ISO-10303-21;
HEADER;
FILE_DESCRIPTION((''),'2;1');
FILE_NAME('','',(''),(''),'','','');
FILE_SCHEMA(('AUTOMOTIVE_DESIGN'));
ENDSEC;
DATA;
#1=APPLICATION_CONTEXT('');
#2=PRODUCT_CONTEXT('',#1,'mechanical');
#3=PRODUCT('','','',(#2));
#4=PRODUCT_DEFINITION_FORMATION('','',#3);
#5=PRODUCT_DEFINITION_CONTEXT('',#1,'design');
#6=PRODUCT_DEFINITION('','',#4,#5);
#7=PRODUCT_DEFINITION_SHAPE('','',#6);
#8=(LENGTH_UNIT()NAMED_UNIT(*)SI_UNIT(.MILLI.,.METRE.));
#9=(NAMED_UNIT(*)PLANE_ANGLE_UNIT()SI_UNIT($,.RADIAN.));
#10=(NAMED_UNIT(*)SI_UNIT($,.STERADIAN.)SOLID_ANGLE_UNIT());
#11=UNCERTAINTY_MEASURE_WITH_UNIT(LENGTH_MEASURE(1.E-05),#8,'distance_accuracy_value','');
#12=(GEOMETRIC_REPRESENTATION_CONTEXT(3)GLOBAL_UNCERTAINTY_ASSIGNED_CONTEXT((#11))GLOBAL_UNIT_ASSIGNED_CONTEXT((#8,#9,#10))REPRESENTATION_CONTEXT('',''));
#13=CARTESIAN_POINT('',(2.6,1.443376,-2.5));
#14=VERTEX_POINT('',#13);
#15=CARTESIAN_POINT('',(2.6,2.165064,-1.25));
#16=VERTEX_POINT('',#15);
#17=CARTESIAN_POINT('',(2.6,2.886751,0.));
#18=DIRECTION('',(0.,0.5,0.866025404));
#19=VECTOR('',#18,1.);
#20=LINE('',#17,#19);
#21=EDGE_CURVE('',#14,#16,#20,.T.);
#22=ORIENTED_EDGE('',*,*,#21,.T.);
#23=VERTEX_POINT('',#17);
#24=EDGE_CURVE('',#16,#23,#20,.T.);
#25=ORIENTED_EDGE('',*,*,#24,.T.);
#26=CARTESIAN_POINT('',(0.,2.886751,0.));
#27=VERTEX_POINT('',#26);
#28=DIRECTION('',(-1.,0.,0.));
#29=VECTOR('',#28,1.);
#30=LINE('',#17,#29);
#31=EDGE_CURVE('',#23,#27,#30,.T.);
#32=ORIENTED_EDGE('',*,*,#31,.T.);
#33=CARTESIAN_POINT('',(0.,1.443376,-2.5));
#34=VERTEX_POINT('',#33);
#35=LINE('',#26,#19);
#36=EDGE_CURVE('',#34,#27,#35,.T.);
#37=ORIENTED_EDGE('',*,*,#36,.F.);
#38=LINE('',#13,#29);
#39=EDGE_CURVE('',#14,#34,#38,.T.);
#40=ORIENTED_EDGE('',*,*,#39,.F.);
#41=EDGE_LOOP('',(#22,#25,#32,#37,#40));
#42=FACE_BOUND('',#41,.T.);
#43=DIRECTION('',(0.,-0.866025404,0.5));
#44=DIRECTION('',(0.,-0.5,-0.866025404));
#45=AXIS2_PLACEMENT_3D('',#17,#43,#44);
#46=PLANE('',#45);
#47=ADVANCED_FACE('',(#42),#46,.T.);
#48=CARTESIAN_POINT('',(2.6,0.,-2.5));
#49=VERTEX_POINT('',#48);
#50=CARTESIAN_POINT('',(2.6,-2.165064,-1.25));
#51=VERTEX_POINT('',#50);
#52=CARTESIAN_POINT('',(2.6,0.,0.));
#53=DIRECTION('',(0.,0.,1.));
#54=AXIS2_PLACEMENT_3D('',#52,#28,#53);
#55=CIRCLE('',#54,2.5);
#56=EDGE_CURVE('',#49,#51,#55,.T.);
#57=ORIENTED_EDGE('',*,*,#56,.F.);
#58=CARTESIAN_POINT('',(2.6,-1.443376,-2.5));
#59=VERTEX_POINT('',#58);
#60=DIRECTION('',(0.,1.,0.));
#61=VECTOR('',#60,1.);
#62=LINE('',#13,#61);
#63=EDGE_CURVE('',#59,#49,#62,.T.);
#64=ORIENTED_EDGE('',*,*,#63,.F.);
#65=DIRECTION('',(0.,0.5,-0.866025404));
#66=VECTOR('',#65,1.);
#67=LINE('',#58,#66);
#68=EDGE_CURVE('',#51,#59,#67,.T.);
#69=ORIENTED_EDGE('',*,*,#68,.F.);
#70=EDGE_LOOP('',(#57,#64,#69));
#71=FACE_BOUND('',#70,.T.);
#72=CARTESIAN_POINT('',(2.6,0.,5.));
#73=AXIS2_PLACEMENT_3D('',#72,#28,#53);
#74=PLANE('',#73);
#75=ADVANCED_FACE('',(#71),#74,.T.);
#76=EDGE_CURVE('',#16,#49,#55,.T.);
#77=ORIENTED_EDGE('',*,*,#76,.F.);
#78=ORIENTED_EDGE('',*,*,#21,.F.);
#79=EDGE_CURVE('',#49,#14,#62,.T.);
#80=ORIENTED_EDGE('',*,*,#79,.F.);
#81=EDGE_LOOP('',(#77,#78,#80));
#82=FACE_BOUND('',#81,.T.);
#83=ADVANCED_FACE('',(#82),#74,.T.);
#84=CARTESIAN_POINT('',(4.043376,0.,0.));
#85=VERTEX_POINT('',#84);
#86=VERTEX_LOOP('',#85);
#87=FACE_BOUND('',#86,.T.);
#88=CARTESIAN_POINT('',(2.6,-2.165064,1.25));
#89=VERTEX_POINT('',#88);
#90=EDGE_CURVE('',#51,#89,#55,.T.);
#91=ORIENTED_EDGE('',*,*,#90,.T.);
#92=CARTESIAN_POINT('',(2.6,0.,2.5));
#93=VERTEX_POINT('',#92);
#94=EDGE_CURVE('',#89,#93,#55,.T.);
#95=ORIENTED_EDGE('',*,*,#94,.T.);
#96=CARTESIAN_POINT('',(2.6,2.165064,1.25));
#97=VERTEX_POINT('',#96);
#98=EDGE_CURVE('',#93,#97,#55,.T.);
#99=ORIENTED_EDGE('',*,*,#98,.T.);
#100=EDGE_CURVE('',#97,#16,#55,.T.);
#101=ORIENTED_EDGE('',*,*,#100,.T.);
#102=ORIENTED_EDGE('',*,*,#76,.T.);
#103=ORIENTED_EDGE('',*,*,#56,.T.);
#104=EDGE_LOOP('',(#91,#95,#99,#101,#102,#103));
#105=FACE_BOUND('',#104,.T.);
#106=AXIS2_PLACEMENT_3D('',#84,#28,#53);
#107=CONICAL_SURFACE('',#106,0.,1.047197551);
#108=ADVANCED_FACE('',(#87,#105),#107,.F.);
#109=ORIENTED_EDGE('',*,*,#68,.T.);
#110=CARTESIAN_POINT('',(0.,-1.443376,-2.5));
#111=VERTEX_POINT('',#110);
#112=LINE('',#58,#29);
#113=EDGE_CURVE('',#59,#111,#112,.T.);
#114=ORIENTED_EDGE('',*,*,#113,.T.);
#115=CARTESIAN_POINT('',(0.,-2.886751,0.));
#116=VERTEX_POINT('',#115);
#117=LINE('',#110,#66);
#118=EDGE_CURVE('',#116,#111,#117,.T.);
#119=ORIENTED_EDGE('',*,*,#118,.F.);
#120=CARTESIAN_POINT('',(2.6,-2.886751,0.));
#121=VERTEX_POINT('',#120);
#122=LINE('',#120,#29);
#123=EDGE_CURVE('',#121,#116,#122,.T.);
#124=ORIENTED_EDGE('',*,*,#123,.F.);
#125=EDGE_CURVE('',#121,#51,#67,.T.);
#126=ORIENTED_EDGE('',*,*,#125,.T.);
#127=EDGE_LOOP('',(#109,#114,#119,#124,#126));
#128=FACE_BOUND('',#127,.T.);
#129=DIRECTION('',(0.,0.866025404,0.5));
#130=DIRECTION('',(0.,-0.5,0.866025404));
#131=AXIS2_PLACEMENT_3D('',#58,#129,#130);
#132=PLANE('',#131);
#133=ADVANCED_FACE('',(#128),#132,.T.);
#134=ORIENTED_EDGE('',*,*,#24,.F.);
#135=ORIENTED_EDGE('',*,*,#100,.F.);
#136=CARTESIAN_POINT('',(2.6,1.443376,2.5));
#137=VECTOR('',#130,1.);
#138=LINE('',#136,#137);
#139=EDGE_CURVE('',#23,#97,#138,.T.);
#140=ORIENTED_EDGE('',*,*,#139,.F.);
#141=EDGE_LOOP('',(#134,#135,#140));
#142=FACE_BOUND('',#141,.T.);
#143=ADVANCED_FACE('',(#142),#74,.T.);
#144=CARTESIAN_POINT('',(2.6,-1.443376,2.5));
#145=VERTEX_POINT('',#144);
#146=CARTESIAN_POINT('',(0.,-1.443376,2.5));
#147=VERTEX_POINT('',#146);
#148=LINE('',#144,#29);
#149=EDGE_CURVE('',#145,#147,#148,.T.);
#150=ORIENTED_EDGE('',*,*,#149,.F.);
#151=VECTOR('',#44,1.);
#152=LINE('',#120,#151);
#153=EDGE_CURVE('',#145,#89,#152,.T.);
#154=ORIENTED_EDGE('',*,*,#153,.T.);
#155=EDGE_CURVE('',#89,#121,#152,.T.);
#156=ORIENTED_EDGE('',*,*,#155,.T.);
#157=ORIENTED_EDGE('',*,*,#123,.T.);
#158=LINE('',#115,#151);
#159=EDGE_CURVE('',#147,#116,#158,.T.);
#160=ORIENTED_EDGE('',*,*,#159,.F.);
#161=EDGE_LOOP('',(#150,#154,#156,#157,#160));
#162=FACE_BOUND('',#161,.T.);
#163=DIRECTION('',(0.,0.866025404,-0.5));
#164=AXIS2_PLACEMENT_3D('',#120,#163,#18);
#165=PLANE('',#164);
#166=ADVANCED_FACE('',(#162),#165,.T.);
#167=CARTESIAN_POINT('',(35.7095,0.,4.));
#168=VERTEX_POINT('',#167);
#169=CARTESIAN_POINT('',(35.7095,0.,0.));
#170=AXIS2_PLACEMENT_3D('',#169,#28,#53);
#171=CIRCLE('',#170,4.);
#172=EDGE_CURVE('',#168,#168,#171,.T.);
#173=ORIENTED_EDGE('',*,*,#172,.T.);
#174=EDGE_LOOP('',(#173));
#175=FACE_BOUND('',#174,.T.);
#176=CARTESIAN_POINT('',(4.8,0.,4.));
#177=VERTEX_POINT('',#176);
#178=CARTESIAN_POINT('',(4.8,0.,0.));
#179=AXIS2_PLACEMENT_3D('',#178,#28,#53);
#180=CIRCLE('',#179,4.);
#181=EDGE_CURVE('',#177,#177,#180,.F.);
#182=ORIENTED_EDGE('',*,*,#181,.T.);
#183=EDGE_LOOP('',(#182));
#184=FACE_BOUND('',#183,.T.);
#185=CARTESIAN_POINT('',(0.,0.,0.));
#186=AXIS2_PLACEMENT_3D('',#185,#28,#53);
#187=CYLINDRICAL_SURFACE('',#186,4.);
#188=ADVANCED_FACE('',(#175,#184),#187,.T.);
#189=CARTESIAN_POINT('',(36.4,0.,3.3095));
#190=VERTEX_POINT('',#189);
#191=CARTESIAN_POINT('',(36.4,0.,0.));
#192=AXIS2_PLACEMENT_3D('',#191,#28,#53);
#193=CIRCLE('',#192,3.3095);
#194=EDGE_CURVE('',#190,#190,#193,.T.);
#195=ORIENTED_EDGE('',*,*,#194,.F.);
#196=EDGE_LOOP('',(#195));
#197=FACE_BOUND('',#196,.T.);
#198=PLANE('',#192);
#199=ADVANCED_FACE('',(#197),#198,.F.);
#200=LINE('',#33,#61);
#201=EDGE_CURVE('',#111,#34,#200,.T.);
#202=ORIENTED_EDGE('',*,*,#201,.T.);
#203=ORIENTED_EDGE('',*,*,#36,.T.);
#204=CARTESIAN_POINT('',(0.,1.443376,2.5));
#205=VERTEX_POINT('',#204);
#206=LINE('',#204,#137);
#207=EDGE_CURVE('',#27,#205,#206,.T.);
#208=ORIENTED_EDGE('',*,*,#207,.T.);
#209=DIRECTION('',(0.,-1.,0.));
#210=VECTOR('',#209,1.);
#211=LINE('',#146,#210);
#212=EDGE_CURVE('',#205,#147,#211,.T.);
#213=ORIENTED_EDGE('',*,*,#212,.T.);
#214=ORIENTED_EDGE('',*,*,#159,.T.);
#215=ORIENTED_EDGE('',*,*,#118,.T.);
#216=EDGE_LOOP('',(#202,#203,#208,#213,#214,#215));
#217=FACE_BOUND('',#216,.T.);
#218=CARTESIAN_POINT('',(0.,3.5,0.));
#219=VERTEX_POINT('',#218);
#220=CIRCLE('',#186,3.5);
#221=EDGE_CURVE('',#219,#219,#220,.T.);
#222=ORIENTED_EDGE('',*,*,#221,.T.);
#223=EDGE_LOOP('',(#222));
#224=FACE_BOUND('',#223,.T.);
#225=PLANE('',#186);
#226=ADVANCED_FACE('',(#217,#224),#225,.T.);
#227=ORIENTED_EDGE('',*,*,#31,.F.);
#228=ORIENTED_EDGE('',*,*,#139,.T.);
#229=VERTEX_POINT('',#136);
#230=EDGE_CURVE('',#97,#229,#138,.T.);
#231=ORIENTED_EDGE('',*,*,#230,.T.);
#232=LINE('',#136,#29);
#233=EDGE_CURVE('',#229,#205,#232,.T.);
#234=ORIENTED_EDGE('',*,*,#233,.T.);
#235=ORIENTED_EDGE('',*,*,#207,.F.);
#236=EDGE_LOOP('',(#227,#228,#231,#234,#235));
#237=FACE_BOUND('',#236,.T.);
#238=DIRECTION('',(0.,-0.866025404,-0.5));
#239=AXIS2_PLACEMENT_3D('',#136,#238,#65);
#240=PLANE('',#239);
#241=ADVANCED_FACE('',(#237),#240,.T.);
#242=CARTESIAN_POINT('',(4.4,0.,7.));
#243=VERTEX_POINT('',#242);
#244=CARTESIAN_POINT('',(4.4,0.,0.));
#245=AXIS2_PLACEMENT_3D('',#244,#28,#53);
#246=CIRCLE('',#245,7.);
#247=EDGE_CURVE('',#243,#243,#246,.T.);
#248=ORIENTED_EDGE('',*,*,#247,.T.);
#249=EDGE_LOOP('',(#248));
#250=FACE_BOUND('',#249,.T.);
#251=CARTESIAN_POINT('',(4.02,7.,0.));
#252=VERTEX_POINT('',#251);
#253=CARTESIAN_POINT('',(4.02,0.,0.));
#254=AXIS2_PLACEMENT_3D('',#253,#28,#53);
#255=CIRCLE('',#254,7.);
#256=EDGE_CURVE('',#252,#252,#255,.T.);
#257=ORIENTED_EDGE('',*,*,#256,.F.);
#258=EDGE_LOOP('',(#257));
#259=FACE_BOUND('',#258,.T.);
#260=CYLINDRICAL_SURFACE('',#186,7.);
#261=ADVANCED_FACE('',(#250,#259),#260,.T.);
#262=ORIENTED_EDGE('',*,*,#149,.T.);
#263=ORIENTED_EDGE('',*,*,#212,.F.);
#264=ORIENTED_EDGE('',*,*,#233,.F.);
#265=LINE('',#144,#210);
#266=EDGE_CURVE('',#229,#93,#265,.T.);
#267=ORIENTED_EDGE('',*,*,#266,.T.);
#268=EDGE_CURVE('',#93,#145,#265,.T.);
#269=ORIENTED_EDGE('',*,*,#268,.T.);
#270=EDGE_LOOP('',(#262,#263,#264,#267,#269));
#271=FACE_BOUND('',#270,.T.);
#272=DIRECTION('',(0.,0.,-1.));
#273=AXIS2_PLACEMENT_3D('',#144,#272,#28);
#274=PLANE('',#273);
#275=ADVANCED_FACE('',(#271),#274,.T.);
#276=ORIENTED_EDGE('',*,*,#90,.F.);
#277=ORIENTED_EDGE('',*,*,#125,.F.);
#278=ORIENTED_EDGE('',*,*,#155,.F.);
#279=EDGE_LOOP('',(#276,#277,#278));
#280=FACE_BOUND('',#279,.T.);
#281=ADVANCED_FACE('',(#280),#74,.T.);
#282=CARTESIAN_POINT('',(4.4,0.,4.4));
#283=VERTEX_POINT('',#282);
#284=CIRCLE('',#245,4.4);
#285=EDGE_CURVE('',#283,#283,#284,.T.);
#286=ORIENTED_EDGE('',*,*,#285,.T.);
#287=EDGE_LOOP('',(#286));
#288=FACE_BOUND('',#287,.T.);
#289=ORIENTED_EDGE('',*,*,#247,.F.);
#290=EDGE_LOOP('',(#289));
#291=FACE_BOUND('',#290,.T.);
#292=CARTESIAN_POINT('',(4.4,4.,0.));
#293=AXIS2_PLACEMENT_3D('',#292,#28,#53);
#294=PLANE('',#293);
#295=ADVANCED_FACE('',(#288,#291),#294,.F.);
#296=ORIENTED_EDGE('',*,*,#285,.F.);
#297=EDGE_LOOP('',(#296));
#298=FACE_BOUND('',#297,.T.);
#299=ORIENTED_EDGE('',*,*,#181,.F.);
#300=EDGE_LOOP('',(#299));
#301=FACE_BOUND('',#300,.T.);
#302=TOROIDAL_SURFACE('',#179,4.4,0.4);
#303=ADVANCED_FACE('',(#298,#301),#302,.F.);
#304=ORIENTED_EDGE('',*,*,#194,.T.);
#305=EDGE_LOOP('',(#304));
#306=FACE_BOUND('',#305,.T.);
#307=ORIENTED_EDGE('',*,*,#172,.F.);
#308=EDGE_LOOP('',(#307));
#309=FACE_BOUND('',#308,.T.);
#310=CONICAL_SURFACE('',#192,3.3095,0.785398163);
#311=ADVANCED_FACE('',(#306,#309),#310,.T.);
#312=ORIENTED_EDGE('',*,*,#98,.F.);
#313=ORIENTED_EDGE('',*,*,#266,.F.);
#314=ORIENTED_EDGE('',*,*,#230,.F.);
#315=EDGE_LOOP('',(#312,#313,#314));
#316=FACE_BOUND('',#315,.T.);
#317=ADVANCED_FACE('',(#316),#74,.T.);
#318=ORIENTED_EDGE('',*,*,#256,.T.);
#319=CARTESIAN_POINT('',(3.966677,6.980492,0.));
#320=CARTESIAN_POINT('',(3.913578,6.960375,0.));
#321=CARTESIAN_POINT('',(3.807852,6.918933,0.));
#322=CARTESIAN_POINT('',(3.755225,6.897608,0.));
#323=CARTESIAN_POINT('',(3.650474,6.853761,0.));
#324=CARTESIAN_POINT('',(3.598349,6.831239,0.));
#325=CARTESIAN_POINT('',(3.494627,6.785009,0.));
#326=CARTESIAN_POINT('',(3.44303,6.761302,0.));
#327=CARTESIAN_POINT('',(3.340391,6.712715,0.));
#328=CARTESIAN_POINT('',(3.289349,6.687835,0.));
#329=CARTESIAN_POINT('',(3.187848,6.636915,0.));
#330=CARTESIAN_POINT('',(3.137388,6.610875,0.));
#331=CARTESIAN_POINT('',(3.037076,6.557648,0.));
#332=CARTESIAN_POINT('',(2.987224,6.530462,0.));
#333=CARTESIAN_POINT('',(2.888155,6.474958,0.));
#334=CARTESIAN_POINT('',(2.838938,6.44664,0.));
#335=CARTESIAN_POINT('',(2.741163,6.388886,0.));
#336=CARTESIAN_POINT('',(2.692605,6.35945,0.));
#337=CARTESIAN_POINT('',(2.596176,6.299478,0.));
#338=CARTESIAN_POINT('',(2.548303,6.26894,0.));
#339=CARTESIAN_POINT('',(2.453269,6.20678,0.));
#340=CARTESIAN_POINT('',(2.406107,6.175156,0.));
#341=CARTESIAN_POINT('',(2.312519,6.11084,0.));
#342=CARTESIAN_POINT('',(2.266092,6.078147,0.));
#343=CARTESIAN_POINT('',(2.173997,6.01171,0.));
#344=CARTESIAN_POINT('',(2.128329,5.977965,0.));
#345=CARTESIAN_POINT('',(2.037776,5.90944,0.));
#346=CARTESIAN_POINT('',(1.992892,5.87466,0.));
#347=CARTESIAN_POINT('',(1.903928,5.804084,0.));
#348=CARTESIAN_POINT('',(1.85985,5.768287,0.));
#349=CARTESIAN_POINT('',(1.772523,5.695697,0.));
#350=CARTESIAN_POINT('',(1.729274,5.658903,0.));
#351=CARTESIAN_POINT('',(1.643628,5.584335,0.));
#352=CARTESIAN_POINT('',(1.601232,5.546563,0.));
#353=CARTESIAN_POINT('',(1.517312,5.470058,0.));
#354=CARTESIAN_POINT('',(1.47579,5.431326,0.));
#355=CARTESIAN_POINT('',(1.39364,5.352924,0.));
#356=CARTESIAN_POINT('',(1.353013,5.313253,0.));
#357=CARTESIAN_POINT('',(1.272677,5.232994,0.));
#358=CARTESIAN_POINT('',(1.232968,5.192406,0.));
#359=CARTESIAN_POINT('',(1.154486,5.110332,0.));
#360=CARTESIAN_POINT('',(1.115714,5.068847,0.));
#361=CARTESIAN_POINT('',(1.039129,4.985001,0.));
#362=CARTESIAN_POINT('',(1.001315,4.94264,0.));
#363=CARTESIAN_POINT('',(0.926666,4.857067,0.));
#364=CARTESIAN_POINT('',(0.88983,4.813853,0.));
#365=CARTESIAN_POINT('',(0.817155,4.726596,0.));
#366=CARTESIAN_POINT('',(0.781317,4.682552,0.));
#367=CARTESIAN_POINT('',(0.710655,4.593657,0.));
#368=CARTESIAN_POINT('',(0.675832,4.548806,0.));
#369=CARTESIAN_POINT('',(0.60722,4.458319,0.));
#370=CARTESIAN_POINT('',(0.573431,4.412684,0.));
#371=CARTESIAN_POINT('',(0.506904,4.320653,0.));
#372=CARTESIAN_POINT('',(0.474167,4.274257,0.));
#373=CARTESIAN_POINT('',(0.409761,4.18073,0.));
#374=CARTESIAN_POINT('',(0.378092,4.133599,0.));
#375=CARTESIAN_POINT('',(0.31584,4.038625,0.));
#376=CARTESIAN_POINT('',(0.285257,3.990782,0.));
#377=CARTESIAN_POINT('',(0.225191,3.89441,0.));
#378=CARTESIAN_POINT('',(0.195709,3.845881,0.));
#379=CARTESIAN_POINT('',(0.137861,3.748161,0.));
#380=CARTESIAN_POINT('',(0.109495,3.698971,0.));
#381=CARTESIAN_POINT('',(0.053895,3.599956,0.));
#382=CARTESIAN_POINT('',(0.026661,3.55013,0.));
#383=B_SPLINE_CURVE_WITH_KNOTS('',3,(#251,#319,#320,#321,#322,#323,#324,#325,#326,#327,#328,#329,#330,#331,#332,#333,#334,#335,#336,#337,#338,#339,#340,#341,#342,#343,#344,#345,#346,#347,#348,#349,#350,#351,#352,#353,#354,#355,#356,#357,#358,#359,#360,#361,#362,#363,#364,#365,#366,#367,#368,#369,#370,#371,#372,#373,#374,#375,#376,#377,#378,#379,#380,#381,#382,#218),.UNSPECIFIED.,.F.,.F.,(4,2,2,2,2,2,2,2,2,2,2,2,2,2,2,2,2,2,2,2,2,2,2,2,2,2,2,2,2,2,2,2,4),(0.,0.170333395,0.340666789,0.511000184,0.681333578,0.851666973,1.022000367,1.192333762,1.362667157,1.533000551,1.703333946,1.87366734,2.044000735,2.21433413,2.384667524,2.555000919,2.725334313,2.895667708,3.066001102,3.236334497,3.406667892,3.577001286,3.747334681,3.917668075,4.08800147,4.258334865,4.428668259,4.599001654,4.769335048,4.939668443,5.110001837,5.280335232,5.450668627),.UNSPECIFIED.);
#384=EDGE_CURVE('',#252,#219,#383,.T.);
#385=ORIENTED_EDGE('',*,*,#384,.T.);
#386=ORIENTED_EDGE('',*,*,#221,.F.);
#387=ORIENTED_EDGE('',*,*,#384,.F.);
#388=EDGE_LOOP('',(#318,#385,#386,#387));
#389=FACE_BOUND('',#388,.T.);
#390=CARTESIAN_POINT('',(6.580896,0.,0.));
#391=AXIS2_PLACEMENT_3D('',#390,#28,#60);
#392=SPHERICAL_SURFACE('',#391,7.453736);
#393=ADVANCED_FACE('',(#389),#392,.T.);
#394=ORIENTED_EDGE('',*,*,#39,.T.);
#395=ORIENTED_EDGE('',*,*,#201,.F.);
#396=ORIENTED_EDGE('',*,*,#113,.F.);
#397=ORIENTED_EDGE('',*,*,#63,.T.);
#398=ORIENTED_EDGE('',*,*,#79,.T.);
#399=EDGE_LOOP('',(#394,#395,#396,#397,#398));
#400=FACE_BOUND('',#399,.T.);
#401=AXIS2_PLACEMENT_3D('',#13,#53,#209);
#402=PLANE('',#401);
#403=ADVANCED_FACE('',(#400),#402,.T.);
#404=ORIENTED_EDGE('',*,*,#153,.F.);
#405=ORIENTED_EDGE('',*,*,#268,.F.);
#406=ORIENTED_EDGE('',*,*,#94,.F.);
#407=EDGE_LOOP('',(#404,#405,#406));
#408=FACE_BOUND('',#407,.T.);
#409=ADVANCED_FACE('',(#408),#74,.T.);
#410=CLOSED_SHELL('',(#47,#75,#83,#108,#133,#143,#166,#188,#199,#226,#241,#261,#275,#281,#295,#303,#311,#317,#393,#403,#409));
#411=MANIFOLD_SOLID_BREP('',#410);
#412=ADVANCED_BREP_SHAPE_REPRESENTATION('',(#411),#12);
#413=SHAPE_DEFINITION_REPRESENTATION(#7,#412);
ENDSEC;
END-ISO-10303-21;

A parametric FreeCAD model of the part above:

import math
import FreeCAD as App
import Part
import Sketcher
from FreeCAD import Vector
Q = App.Units.Quantity


def edges_at(feature, points):
    """Names of the edges that pass closest to the given points."""
    edges = feature.Shape.Edges
    near = lambda p: min(range(len(edges)), key=lambda i: edges[i].distToShape(Part.Vertex(*p))[0])
    return sorted({f"Edge{near(p) + 1}" for p in points})

doc = App.newDocument("Part")
body = doc.addObject("PartDesign::Body", "Body")

# Sketch on XY plane
sketch1 = body.newObject("Sketcher::SketchObject", "Sketch")
sketch1.AttachmentSupport = (doc.getObject("XY_Plane"), [""])
sketch1.MapMode = "FlatFace"
sketch1.addGeometry([
    Part.LineSegment(Vector(36.4, 0, 0), Vector(36.4, 3.31, 0)),  # 0
    Part.LineSegment(Vector(36.4, 3.31, 0), Vector(35.71, 4, 0)),  # 1
    Part.LineSegment(Vector(35.71, 4, 0), Vector(4.4, 4, 0)),  # 2
    Part.LineSegment(Vector(4.4, 4, 0), Vector(4.4, 7, 0)),  # 3
    Part.LineSegment(Vector(4.4, 7, 0), Vector(4.02, 7, 0)),  # 4
    Part.ArcOfCircle(Part.Circle(Vector(6.58, 0, 0), Vector(0, 0, 1), 7.45), math.radians(110), math.radians(152)),  # 5
    Part.LineSegment(Vector(0, 3.5, 0), Vector(0, 0, 0)),  # 6
    Part.LineSegment(Vector(0, 0, 0), Vector(36.4, 0, 0)),  # 7
], False)
sketch1.addConstraint([
    Sketcher.Constraint("Coincident", 0, 2, 1, 1),
    Sketcher.Constraint("Coincident", 1, 2, 2, 1),
    Sketcher.Constraint("Coincident", 2, 2, 3, 1),
    Sketcher.Constraint("Coincident", 3, 2, 4, 1),
    Sketcher.Constraint("Coincident", 4, 2, 5, 1),
    Sketcher.Constraint("Coincident", 5, 2, 6, 1),
    Sketcher.Constraint("Coincident", 6, 2, 7, 1),
    Sketcher.Constraint("Coincident", 7, 2, 0, 1),
    Sketcher.Constraint("Vertical", 0),
    Sketcher.Constraint("Horizontal", 2),
    Sketcher.Constraint("Vertical", 3),
    Sketcher.Constraint("Horizontal", 4),
    Sketcher.Constraint("Vertical", 6),
    Sketcher.Constraint("Horizontal", 7),
    Sketcher.Constraint("Coincident", 6, 2, -1, 1),
    Sketcher.Constraint("PointOnObject", 5, 3, -1),
    Sketcher.Constraint("DistanceY", 3, 1, 3, 2, 3.0),
    Sketcher.Constraint("Angle", 1, Q("135 deg")),
    Sketcher.Constraint("DistanceX", 7, 1, 7, 2, 36.4),
    Sketcher.Constraint("DistanceY", 6, 2, 6, 1, 3.5),
    Sketcher.Constraint("DistanceY", -1, 1, 1, 2, 4.0),
    Sketcher.Constraint("DistanceX", 2, 2, 0, 2, 32.0),
    Sketcher.Constraint("DistanceX", 4, 2, 4, 1, 0.38),
    Sketcher.Constraint("DistanceX", 2, 2, 2, 1, 31.3095),
])
revolution = body.newObject("PartDesign::Revolution", "Revolution")
revolution.Profile = sketch1
revolution.ReferenceAxis = (sketch1, ["H_Axis"])
revolution.Angle = 360
doc.recompute()

fillet = body.newObject("PartDesign::Fillet", "Fillet")
fillet.Base = (revolution, edges_at(revolution, [(4.4, 0, -4)]))
fillet.Radius = 0.4

# Sketch on XY plane
sketch2 = body.newObject("Sketcher::SketchObject", "Sketch001")
sketch2.AttachmentSupport = (doc.getObject("XY_Plane"), [""])
sketch2.MapMode = "FlatFace"
sketch2.addGeometry([
    Part.LineSegment(Vector(2.6, 2.5, 0), Vector(0, 2.5, 0)),
    Part.LineSegment(Vector(0, 2.5, 0), Vector(0, 0, 0)),
    Part.LineSegment(Vector(0, 0, 0), Vector(4, 0, 0)),
    Part.LineSegment(Vector(4, 0, 0), Vector(2.6, 2.5, 0)),
], False)
sketch2.addConstraint([
    Sketcher.Constraint("Coincident", 0, 2, 1, 1),
    Sketcher.Constraint("Coincident", 1, 2, 2, 1),
    Sketcher.Constraint("Coincident", 2, 2, 3, 1),
    Sketcher.Constraint("Coincident", 3, 2, 0, 1),
    Sketcher.Constraint("Horizontal", 0),
    Sketcher.Constraint("Vertical", 1),
    Sketcher.Constraint("Horizontal", 2),
    Sketcher.Constraint("Coincident", 1, 2, -1, 1),
    Sketcher.Constraint("Angle", 3, Q("120 deg")),
    Sketcher.Constraint("DistanceX", 0, 2, 0, 1, 2.6),
    Sketcher.Constraint("DistanceY", 1, 2, 1, 1, 2.5),
])
groove = body.newObject("PartDesign::Groove", "Groove")
groove.Profile = sketch2
groove.ReferenceAxis = (sketch2, ["H_Axis"])
groove.Angle = 360

# Sketch on YZ plane
sketch3 = body.newObject("Sketcher::SketchObject", "Sketch002")
sketch3.AttachmentSupport = (doc.getObject("YZ_Plane"), [""])
sketch3.MapMode = "FlatFace"
sketch3.addGeometry([
    Part.LineSegment(Vector(1.4, 2.5, 0), Vector(-1.4, 2.5, 0)),  # 0
    Part.LineSegment(Vector(-1.4, 2.5, 0), Vector(-2.9, 0, 0)),  # 1
    Part.LineSegment(Vector(-2.9, 0, 0), Vector(-1.4, -2.5, 0)),  # 2
    Part.LineSegment(Vector(-1.4, -2.5, 0), Vector(1.4, -2.5, 0)),  # 3
    Part.LineSegment(Vector(1.4, -2.5, 0), Vector(2.9, 0, 0)),  # 4
    Part.LineSegment(Vector(2.9, 0, 0), Vector(1.4, 2.5, 0)),  # 5
], False)
sketch3.addConstraint([
    Sketcher.Constraint("Coincident", 0, 2, 1, 1),
    Sketcher.Constraint("Coincident", 1, 2, 2, 1),
    Sketcher.Constraint("Coincident", 2, 2, 3, 1),
    Sketcher.Constraint("Coincident", 3, 2, 4, 1),
    Sketcher.Constraint("Coincident", 4, 2, 5, 1),
    Sketcher.Constraint("Coincident", 5, 2, 0, 1),
    Sketcher.Constraint("Horizontal", 0),
    Sketcher.Constraint("Horizontal", 3),
    Sketcher.Constraint("Symmetric", 0, 2, 3, 2, -1, 1),
    Sketcher.Constraint("Symmetric", 1, 2, 4, 2, -1, 1),
    Sketcher.Constraint("PointOnObject", 1, 2, -1),
    Sketcher.Constraint("Parallel", 2, 5),
    Sketcher.Constraint("Vertical", 0, 2, 2, 2),
    Sketcher.Constraint("Angle", 1, Q("-120 deg")),
    Sketcher.Constraint("DistanceY", 2, 2, 0, 2, 5.0),
    Sketcher.Constraint("DistanceX", 0, 2, 0, 1, 2.886751),
])
pocket1 = body.newObject("PartDesign::Pocket", "Pocket")
pocket1.Profile = sketch3
pocket1.Length = 2.6
pocket1.Reversed = True

doc.recompute()
